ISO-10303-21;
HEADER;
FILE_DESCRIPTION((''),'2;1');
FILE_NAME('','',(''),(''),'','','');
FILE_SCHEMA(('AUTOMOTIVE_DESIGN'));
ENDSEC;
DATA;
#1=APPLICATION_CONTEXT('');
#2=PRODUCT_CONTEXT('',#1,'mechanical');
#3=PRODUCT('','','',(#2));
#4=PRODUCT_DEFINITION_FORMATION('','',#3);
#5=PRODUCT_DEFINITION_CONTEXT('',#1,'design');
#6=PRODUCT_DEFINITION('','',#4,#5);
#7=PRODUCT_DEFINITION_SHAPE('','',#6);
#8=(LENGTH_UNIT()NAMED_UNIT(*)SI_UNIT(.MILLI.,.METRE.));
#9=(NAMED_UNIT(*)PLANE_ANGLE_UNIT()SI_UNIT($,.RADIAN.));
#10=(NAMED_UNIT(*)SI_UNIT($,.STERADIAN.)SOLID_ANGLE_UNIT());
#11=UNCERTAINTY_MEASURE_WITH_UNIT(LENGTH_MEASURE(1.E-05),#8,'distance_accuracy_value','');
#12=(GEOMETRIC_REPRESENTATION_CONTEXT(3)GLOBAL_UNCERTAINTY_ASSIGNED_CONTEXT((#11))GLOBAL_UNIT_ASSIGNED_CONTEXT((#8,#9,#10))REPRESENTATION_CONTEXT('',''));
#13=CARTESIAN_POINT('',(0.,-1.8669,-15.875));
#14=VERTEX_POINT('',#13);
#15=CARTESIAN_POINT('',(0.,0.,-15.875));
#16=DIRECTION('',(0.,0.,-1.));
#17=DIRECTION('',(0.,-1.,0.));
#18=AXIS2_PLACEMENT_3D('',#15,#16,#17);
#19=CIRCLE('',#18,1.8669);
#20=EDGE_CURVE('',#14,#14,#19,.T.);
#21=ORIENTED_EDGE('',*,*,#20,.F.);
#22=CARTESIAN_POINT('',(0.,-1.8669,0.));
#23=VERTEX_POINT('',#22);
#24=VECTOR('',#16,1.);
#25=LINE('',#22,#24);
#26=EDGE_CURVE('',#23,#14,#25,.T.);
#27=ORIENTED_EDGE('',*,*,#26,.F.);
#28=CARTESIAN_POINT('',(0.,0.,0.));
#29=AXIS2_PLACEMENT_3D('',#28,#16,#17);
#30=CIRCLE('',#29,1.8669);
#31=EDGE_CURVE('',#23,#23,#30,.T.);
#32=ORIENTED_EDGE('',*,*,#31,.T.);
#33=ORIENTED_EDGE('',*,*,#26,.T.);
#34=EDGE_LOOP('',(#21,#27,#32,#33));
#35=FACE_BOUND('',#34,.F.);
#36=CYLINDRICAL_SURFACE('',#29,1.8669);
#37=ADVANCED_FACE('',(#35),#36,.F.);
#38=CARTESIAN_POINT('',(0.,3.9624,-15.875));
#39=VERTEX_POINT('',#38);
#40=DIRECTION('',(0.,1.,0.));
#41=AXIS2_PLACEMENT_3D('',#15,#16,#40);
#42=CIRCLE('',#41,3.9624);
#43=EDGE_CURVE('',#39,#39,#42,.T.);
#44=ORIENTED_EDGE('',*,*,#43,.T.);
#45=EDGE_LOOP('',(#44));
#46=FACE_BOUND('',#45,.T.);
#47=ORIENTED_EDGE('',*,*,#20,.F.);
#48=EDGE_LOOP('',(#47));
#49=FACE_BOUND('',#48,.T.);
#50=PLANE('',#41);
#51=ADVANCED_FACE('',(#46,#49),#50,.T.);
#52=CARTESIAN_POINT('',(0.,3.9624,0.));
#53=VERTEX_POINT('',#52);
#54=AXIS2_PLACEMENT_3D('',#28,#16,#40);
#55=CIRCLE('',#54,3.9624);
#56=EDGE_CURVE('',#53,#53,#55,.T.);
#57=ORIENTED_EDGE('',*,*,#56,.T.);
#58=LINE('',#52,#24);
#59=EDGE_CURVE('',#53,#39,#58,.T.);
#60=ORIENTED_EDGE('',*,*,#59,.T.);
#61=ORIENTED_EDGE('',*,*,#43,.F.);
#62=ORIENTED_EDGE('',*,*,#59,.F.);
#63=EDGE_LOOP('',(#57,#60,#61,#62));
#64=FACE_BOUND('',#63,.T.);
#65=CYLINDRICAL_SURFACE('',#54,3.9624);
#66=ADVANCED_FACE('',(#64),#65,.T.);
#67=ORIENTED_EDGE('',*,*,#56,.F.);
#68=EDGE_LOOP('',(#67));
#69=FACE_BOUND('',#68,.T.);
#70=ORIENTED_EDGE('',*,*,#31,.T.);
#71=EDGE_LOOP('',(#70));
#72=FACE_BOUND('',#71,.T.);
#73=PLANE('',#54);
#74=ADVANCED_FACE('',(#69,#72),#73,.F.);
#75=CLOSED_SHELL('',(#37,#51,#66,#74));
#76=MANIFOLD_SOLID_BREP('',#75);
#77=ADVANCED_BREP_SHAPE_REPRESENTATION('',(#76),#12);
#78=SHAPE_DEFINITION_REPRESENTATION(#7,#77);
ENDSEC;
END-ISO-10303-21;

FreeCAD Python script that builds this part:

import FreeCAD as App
import Part
import Sketcher
Q = App.Units.Quantity

doc = App.newDocument("Part")
params = doc.addObject("Spreadsheet::Sheet", "Params")
for row, (alias, value) in enumerate([
    ("sketch1_width", "0.156 in"),
    ("sketch1_height", "0.625 in"),
    ("revolution_angle", "360 deg"),
    ("sketch2_diameter", "0.147 in"),
    ("hole_diameter", "0.147 in"),
    ("hole_depth", "0.625 in"),
], start=1):
    params.set(f"A{row}", alias)
    params.set(f"B{row}", "=" + value)
    params.setAlias(f"B{row}", alias)

body = doc.addObject("PartDesign::Body", "Body")

sketch1 = doc.addObject("Sketcher::SketchObject", "Sketch")
body.addObject(sketch1)
sketch1.AttachmentSupport = (doc.YZ_Plane, [""])
sketch1.MapMode = "FlatFace"
sketch1.addGeometry([
    Part.LineSegment(App.Vector(0, 0, 0), App.Vector(0, -15.9, 0)),
    Part.LineSegment(App.Vector(0, -15.9, 0), App.Vector(4, -15.9, 0)),
    Part.LineSegment(App.Vector(4, -15.9, 0), App.Vector(4, 0, 0)),
    Part.LineSegment(App.Vector(4, 0, 0), App.Vector(0, 0, 0)),
], False)
sketch1.addConstraint([
    Sketcher.Constraint("Coincident", 0, 2, 1, 1),
    Sketcher.Constraint("Coincident", 1, 2, 2, 1),
    Sketcher.Constraint("Coincident", 2, 2, 3, 1),
    Sketcher.Constraint("Coincident", 3, 2, 0, 1),
    Sketcher.Constraint("Vertical", 0),
    Sketcher.Constraint("Horizontal", 1),
    Sketcher.Constraint("Vertical", 2),
    Sketcher.Constraint("Horizontal", 3),
    Sketcher.Constraint("Coincident", 3, 2, -1, 1),
    Sketcher.Constraint("DistanceX", 1, 1, 1, 2, Q("0.156 in")),
    Sketcher.Constraint("DistanceY", 0, 2, 0, 1, Q("0.625 in")),
])
sketch1.setExpression("Constraints[9]", "Params.sketch1_width")
sketch1.setExpression("Constraints[10]", "Params.sketch1_height")
revolution = doc.addObject("PartDesign::Revolution", "Revolution")
body.addObject(revolution)
revolution.Profile = sketch1
revolution.ReferenceAxis = (sketch1, ["V_Axis"])
revolution.setExpression("Angle", "Params.revolution_angle")

sketch2 = doc.addObject("Sketcher::SketchObject", "Sketch001")
body.addObject(sketch2)
sketch2.AttachmentSupport = (doc.XY_Plane, [""])
sketch2.MapMode = "FlatFace"
sketch2.addGeometry(Part.Circle(App.Vector(0, 0, 0), App.Vector(0, 0, 1), 1.9), False)
sketch2.addConstraint([
    Sketcher.Constraint("Coincident", 0, 3, -1, 1),
    Sketcher.Constraint("Diameter", 0, Q("0.147 in")),
])
sketch2.setExpression("Constraints[1]", "Params.sketch2_diameter")
doc.recompute()
hole = doc.addObject("PartDesign::Hole", "Hole")
body.addObject(hole)
hole.Profile = sketch2
hole.ThreadType = "None"
hole.setExpression("Diameter", "Params.hole_diameter")
hole.DepthType = "Dimension"
hole.setExpression("Depth", "Params.hole_depth")
hole.DrillPoint = "Flat"

doc.recompute()
